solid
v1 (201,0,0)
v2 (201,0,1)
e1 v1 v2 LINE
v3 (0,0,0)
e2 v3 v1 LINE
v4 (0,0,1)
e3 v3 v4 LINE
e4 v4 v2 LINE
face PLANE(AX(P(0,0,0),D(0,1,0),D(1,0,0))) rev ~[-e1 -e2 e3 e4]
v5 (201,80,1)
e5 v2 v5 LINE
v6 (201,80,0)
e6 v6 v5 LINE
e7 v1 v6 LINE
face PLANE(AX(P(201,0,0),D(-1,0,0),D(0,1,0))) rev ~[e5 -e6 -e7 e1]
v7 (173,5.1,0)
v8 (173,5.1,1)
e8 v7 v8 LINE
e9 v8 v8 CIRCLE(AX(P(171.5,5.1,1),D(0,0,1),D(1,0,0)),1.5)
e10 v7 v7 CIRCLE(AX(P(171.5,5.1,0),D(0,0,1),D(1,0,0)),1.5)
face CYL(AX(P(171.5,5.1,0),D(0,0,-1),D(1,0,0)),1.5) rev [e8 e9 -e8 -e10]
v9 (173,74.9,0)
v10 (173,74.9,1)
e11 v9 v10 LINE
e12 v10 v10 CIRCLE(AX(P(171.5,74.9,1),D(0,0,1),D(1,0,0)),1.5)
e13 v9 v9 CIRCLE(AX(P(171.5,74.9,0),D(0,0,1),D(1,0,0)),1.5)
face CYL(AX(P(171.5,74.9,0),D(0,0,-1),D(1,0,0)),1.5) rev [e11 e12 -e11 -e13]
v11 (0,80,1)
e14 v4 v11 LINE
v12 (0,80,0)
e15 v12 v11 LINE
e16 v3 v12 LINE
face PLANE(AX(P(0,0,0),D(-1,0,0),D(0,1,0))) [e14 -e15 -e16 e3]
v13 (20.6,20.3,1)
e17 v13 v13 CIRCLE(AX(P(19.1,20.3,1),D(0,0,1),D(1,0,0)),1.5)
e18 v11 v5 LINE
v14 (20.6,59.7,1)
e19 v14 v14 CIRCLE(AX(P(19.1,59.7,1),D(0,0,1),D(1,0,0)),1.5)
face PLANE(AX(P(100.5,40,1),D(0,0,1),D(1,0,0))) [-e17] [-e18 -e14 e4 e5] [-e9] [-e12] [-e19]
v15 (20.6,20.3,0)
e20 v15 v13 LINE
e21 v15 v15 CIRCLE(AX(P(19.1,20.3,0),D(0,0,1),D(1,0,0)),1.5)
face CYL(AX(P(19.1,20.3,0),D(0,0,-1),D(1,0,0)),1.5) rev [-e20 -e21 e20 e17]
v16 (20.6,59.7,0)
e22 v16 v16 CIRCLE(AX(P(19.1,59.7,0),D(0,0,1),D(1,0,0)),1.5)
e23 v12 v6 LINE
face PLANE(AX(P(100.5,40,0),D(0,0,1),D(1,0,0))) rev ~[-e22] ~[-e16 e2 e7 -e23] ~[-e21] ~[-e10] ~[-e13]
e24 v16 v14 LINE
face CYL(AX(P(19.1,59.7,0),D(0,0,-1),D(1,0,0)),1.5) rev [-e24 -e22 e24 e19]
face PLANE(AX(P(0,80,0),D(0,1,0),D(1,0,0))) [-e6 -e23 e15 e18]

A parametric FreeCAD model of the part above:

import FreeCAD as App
import Part
import Sketcher
Q = App.Units.Quantity


def add_polygon(sketch, points):
    """Adds a closed chain of lines whose ends are joined by coincident constraints."""
    first, n = sketch.GeometryCount, len(points)
    for a, b in zip(points, points[1:] + points[:1]):
        sketch.addGeometry(Part.LineSegment(App.Vector(*a, 0), App.Vector(*b, 0)), False)
    for i in range(n):
        sketch.addConstraint(Sketcher.Constraint("Coincident", first + i, 2, first + (i + 1) % n, 1))

doc = App.newDocument("Part")
body = doc.addObject("PartDesign::Body", "Body")

# Sketch on XY plane
sketch1 = doc.addObject("Sketcher::SketchObject", "Sketch")
body.addObject(sketch1)
sketch1.AttachmentSupport = (doc.XY_Plane, [""])
sketch1.MapMode = "FlatFace"
add_polygon(sketch1, [(0, 80), (0, 0), (201, 0), (201, 80)])  # lines 0-3
sketch1.addGeometry(Part.Circle(App.Vector(19.1, 20.3, 0), App.Vector(0, 0, 1), 1.5), False)  # 4
sketch1.addGeometry(Part.Circle(App.Vector(171.5, 5.1, 0), App.Vector(0, 0, 1), 1.5), False)  # 5
sketch1.addGeometry(Part.Circle(App.Vector(19.1, 59.7, 0), App.Vector(0, 0, 1), 1.5), False)  # 6
sketch1.addGeometry(Part.Circle(App.Vector(171.5, 74.9, 0), App.Vector(0, 0, 1), 1.5), False)  # 7
sketch1.addConstraint([
    Sketcher.Constraint("Vertical", 0),
    Sketcher.Constraint("Horizontal", 1),
    Sketcher.Constraint("Vertical", 2),
    Sketcher.Constraint("Horizontal", 3),
    Sketcher.Constraint("Coincident", 0, 2, -1, 1),
    Sketcher.Constraint("Equal", 4, 5),
    Sketcher.Constraint("Equal", 5, 6),
    Sketcher.Constraint("Equal", 6, 7),
    Sketcher.Constraint("Vertical", 4, 3, 6, 3),
    Sketcher.Constraint("Vertical", 5, 3, 7, 3),
    Sketcher.Constraint("Diameter", 4, Q("3 mm")),
    Sketcher.Constraint("DistanceX", 1, 1, 1, 2, Q("201 mm")),
    Sketcher.Constraint("DistanceY", 0, 2, 0, 1, Q("80 mm")),
    Sketcher.Constraint("DistanceX", -1, 1, 4, 3, Q("19.1 mm")),
    Sketcher.Constraint("DistanceY", -1, 1, 4, 3, Q("20.3 mm")),
    Sketcher.Constraint("DistanceX", -1, 1, 5, 3, Q("171.5 mm")),
    Sketcher.Constraint("DistanceY", -1, 1, 5, 3, Q("5.1 mm")),
    Sketcher.Constraint("DistanceY", -1, 1, 6, 3, Q("59.7 mm")),
    Sketcher.Constraint("DistanceY", -1, 1, 7, 3, Q("74.9 mm")),
])
pad1 = doc.addObject("PartDesign::Pad", "Pad")
body.addObject(pad1)
pad1.Profile = sketch1
pad1.Length = 1

doc.recompute()
